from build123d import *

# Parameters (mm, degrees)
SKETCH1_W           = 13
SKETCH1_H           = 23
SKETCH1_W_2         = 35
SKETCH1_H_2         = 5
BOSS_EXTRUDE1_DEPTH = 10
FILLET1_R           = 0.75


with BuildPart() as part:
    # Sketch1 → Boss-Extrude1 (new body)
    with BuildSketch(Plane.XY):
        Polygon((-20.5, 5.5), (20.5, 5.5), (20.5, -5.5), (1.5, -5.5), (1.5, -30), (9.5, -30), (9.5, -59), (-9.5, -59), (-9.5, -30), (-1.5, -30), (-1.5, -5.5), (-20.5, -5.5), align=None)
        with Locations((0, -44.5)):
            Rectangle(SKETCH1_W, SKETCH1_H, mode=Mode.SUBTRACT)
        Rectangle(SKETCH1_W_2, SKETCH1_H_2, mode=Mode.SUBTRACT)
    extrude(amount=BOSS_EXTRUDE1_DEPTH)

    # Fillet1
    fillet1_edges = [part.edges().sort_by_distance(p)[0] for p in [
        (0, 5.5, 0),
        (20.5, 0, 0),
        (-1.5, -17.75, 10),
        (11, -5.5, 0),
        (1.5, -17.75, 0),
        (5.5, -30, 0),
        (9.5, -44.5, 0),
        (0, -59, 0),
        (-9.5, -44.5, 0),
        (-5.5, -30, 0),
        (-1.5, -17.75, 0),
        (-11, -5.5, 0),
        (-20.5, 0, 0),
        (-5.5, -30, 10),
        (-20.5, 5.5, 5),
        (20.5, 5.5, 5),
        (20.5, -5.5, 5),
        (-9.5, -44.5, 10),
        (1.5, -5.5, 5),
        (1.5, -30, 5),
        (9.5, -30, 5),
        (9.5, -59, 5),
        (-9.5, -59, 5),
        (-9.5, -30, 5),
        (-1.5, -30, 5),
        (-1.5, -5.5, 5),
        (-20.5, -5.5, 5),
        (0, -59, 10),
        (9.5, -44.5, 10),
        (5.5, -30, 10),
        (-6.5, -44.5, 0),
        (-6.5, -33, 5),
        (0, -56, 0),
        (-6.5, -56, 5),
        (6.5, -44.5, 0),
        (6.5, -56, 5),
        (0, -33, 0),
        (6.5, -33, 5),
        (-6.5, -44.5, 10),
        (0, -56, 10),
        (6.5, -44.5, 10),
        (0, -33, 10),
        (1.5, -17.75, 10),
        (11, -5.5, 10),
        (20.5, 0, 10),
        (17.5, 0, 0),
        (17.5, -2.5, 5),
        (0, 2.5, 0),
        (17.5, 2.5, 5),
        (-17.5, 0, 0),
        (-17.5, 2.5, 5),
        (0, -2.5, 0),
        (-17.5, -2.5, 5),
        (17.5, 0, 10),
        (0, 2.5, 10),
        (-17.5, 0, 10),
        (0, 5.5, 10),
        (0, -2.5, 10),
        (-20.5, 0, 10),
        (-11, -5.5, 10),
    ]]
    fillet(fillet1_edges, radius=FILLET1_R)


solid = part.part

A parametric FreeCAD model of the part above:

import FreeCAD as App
import Part
import Sketcher
from FreeCAD import Vector
Q = App.Units.Quantity

doc = App.newDocument("Part")
body = doc.addObject("PartDesign::Body", "Body")

sketch1 = body.newObject("Sketcher::SketchObject", "Sketch")
sketch1.AttachmentSupport = (doc.getObject("XY_Plane"), [""])
sketch1.MapMode = "FlatFace"
sketch1.addGeometry([
    Part.LineSegment(Vector(20, 6, 0), Vector(-20, 6, 0)),
    Part.LineSegment(Vector(-20, 6, 0), Vector(-20, -6, 0)),
    Part.LineSegment(Vector(-20, -6, 0), Vector(-2, -6, 0)),
    Part.LineSegment(Vector(-2, -6, 0), Vector(-2, -30, 0)),
    Part.LineSegment(Vector(-2, -30, 0), Vector(-10, -30, 0)),
    Part.LineSegment(Vector(-10, -30, 0), Vector(-10, -59, 0)),
    Part.LineSegment(Vector(-10, -59, 0), Vector(10, -59, 0)),
    Part.LineSegment(Vector(10, -59, 0), Vector(10, -30, 0)),
    Part.LineSegment(Vector(10, -30, 0), Vector(2, -30, 0)),
    Part.LineSegment(Vector(2, -30, 0), Vector(2, -6, 0)),
    Part.LineSegment(Vector(2, -6, 0), Vector(20, -6, 0)),
    Part.LineSegment(Vector(20, -6, 0), Vector(20, 6, 0)),
    Part.LineSegment(Vector(-6, -56, 0), Vector(-6, -33, 0)),
    Part.LineSegment(Vector(-6, -33, 0), Vector(6, -33, 0)),
    Part.LineSegment(Vector(6, -33, 0), Vector(6, -56, 0)),
    Part.LineSegment(Vector(6, -56, 0), Vector(-6, -56, 0)),
    Part.LineSegment(Vector(-18, -2, 0), Vector(-18, 2, 0)),
    Part.LineSegment(Vector(-18, 2, 0), Vector(18, 2, 0)),
    Part.LineSegment(Vector(18, 2, 0), Vector(18, -2, 0)),
    Part.LineSegment(Vector(18, -2, 0), Vector(-18, -2, 0)),
], False)
sketch1.addConstraint([
    Sketcher.Constraint("Coincident", 0, 2, 1, 1),
    Sketcher.Constraint("Coincident", 1, 2, 2, 1),
    Sketcher.Constraint("Coincident", 2, 2, 3, 1),
    Sketcher.Constraint("Coincident", 3, 2, 4, 1),
    Sketcher.Constraint("Coincident", 4, 2, 5, 1),
    Sketcher.Constraint("Coincident", 5, 2, 6, 1),
    Sketcher.Constraint("Coincident", 6, 2, 7, 1),
    Sketcher.Constraint("Coincident", 7, 2, 8, 1),
    Sketcher.Constraint("Coincident", 8, 2, 9, 1),
    Sketcher.Constraint("Coincident", 9, 2, 10, 1),
    Sketcher.Constraint("Coincident", 10, 2, 11, 1),
    Sketcher.Constraint("Coincident", 11, 2, 0, 1),
    Sketcher.Constraint("Coincident", 12, 2, 13, 1),
    Sketcher.Constraint("Coincident", 13, 2, 14, 1),
    Sketcher.Constraint("Coincident", 14, 2, 15, 1),
    Sketcher.Constraint("Coincident", 15, 2, 12, 1),
    Sketcher.Constraint("Coincident", 16, 2, 17, 1),
    Sketcher.Constraint("Coincident", 17, 2, 18, 1),
    Sketcher.Constraint("Coincident", 18, 2, 19, 1),
    Sketcher.Constraint("Coincident", 19, 2, 16, 1),
    Sketcher.Constraint("Horizontal", 0),
    Sketcher.Constraint("Vertical", 1),
    Sketcher.Constraint("Horizontal", 2),
    Sketcher.Constraint("Vertical", 3),
    Sketcher.Constraint("Horizontal", 4),
    Sketcher.Constraint("Vertical", 5),
    Sketcher.Constraint("Horizontal", 6),
    Sketcher.Constraint("Vertical", 7),
    Sketcher.Constraint("Horizontal", 8),
    Sketcher.Constraint("Vertical", 9),
    Sketcher.Constraint("Horizontal", 10),
    Sketcher.Constraint("Vertical", 11),
    Sketcher.Constraint("Vertical", 12),
    Sketcher.Constraint("Horizontal", 13),
    Sketcher.Constraint("Vertical", 14),
    Sketcher.Constraint("Horizontal", 15),
    Sketcher.Constraint("Vertical", 16),
    Sketcher.Constraint("Horizontal", 17),
    Sketcher.Constraint("Vertical", 18),
    Sketcher.Constraint("Horizontal", 19),
    Sketcher.Constraint("Symmetric", 0, 2, 10, 2, -1, 1),
    Sketcher.Constraint("Symmetric", 16, 2, 18, 2, -1, 1),
    Sketcher.Constraint("Symmetric", 4, 2, 7, 2, -2),
    Sketcher.Constraint("Symmetric", 2, 2, 9, 2, -2),
    Sketcher.Constraint("Equal", 2, 6),
    Sketcher.Constraint("DistanceX", 0, 2, 0, 1, Q("41 mm")),
    Sketcher.Constraint("DistanceX", 2, 1, 2, 2, Q("19 mm")),
    Sketcher.Constraint("DistanceX", 13, 1, 13, 2, Q("13 mm")),
    Sketcher.Constraint("DistanceX", 17, 1, 17, 2, Q("35 mm")),
    Sketcher.Constraint("DistanceY", 1, 2, 1, 1, Q("11 mm")),
    Sketcher.Constraint("DistanceY", 5, 2, 5, 1, Q("29 mm")),
    Sketcher.Constraint("DistanceY", 12, 1, 12, 2, Q("23 mm")),
    Sketcher.Constraint("DistanceY", 16, 1, 16, 2, Q("5 mm")),
    Sketcher.Constraint("DistanceY", 3, 2, 3, 1, Q("24.5 mm")),
    Sketcher.Constraint("DistanceY", 12, 2, -1, 1, Q("33 mm")),
    Sketcher.Constraint("DistanceX", 4, 2, 12, 2, Q("3 mm")),
])
pad1 = body.newObject("PartDesign::Pad", "Pad")
pad1.Profile = sketch1
pad1.Length = 10
doc.recompute()

fillet = body.newObject("PartDesign::Fillet", "Fillet")
fillet.Base = (pad1, ["Edge1"])
fillet.UseAllEdges = True
fillet.Radius = 0.75

doc.recompute()
